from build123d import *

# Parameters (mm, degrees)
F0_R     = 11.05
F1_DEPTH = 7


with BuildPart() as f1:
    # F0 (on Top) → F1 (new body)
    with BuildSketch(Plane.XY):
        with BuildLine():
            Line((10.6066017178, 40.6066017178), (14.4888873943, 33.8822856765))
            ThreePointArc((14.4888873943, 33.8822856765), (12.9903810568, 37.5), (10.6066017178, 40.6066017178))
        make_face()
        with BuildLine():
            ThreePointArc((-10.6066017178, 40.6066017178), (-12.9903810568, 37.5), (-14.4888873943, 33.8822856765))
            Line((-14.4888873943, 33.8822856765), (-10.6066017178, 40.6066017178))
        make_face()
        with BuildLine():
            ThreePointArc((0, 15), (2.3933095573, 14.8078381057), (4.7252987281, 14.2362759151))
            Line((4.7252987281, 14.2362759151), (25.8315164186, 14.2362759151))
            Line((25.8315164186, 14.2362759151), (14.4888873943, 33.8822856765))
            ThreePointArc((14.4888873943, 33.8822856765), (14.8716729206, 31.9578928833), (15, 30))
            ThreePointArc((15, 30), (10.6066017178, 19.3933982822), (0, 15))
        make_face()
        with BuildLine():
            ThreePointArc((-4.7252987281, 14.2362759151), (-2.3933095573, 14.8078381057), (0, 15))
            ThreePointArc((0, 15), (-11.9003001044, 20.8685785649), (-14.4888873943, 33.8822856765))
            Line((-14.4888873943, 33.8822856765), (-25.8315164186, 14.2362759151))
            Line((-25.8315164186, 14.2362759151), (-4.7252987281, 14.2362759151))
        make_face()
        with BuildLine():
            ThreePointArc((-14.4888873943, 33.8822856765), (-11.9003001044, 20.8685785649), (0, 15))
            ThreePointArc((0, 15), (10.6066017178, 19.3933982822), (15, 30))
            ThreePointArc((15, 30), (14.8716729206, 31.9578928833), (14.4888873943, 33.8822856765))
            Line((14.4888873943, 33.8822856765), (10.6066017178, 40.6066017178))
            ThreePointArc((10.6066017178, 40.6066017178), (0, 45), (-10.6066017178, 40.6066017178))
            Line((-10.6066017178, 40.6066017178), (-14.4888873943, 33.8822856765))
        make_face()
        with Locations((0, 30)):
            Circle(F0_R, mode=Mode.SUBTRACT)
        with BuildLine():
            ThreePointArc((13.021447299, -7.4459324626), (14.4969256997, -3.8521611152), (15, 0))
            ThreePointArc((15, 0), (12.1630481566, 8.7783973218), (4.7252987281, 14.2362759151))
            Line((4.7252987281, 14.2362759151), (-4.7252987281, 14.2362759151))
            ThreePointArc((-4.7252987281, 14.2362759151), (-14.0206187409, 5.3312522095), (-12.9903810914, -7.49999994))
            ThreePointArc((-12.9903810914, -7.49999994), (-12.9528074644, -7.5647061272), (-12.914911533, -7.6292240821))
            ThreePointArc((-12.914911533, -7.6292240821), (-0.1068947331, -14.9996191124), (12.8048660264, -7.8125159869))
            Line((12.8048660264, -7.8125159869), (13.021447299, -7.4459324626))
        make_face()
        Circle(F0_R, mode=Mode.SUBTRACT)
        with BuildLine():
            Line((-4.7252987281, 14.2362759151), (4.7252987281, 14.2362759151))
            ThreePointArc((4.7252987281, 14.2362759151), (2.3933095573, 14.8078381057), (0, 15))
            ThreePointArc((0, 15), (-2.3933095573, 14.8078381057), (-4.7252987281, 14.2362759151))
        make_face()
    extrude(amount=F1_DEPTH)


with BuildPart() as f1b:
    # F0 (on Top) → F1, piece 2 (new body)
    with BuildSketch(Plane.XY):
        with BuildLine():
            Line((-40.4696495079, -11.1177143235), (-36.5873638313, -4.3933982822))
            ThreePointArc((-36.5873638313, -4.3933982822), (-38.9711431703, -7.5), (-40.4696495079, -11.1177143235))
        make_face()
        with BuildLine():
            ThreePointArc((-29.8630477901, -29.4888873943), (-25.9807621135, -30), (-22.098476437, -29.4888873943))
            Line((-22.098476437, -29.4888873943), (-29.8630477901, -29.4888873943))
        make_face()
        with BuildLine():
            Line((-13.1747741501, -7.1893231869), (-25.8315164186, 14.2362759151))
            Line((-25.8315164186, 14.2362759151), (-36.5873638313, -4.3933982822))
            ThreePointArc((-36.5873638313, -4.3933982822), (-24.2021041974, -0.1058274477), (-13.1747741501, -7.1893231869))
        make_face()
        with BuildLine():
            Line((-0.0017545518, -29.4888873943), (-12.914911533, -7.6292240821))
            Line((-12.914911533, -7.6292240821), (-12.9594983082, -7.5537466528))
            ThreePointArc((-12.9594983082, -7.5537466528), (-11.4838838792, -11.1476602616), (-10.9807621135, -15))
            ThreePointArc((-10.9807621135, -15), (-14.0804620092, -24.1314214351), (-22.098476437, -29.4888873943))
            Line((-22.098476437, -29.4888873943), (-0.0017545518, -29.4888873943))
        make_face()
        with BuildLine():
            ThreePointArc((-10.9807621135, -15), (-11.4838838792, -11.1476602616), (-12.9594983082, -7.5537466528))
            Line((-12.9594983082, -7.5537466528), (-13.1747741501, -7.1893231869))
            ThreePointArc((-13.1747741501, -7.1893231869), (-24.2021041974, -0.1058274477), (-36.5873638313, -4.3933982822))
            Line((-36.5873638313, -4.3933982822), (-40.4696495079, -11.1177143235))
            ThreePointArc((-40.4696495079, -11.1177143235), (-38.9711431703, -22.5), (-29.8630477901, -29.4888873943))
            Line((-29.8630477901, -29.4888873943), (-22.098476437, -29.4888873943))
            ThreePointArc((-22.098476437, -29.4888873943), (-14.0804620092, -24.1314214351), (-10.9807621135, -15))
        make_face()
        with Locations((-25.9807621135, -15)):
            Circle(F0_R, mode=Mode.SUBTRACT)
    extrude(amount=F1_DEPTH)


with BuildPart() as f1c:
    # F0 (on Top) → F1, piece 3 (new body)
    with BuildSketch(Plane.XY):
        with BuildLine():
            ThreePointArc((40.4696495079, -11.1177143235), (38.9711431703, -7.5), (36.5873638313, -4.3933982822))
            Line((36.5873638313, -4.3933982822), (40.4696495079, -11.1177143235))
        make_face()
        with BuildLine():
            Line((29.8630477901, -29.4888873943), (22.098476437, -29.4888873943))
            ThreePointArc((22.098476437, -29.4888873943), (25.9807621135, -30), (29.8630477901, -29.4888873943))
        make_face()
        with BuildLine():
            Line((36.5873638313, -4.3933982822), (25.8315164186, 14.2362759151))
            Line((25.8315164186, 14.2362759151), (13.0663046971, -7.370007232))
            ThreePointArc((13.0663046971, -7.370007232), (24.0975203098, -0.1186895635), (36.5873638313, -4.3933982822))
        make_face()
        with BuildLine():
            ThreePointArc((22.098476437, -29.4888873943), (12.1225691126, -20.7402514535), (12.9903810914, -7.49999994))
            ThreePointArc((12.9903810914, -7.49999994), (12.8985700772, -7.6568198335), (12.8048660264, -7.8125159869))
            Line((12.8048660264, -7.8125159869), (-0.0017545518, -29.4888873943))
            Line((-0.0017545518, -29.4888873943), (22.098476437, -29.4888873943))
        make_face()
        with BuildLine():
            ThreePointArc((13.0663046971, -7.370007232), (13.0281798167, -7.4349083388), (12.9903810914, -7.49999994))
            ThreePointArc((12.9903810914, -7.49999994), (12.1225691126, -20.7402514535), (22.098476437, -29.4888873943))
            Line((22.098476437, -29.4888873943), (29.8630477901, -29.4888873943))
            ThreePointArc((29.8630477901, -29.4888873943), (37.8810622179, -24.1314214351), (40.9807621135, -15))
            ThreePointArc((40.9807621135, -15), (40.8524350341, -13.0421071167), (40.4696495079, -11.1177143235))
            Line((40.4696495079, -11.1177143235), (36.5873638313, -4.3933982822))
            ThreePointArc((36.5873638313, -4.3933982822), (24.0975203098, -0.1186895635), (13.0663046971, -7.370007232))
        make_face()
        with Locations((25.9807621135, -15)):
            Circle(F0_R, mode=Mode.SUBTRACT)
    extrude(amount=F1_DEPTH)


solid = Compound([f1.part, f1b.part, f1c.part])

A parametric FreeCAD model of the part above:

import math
import FreeCAD as App
import Part
import Sketcher

V = App.Vector
Q = App.Units.Quantity

doc = App.newDocument("Part")
body = doc.addObject("PartDesign::Body", "Body")

sketch1 = body.newObject("Sketcher::SketchObject", "Sketch")
sketch1.AttachmentSupport = (doc.getObject("XY_Plane"), [""])
sketch1.MapMode = "FlatFace"
sketch1.addGeometry([
    Part.ArcOfCircle(Part.Circle(V(0, 30, 0), V(0, 0, 1), 15), math.radians(15), math.radians(45)),
    Part.ArcOfCircle(Part.Circle(V(0, 30, 0), V(0, 0, 1), 15), math.radians(45), math.radians(135)),
    Part.ArcOfCircle(Part.Circle(V(0, 30, 0), V(0, 0, 1), 15), math.radians(135), math.radians(165)),
    Part.LineSegment(V(-14.488887, 33.882286, 0), V(-25.831516, 14.236276, 0)),
    Part.LineSegment(V(-25.831516, 14.236276, 0), V(-4.725299, 14.236276, 0)),
    Part.ArcOfCircle(Part.Circle(V(0, 0, 0), V(0, 0, 1), 15), math.radians(108.362016), math.radians(210)),
    Part.ArcOfCircle(Part.Circle(V(-0.000002, -0.000001, 0), V(0, 0, 1), 14.999998), math.radians(-150), math.radians(-149.428384)),
    Part.ArcOfCircle(Part.Circle(V(0, 0, 0), V(0, 0, 1), 15), math.radians(-149.428385), math.radians(-31.388238)),
    Part.LineSegment(V(12.804866, -7.812516, 0), V(13.021447, -7.445932, 0)),
    Part.ArcOfCircle(Part.Circle(V(0, 0, 0), V(0, 0, 1), 15), math.radians(-29.761813), math.radians(0)),
    Part.ArcOfCircle(Part.Circle(V(0, 0, 0), V(0, 0, 1), 15), math.radians(0), math.radians(71.637984)),
    Part.LineSegment(V(4.725299, 14.236276, 0), V(25.831516, 14.236276, 0)),
    Part.LineSegment(V(25.831516, 14.236276, 0), V(14.488887, 33.882286, 0)),
    Part.Circle(V(0, 30, 0), V(0, 0, 1), 11.05),
    Part.Circle(V(0, 0, 0), V(0, 0, 1), 11.05),
], False)
sketch1.addConstraint([
    Sketcher.Constraint("Tangent", 0, 2, 1, 1),
    Sketcher.Constraint("Tangent", 1, 2, 2, 1),
    Sketcher.Constraint("Coincident", 2, 2, 3, 1),
    Sketcher.Constraint("Coincident", 3, 2, 4, 1),
    Sketcher.Constraint("Coincident", 4, 2, 5, 1),
    Sketcher.Constraint("Tangent", 5, 2, 6, 1),
    Sketcher.Constraint("Tangent", 6, 2, 7, 1),
    Sketcher.Constraint("Coincident", 7, 2, 8, 1),
    Sketcher.Constraint("Coincident", 8, 2, 9, 1),
    Sketcher.Constraint("Tangent", 9, 2, 10, 1),
    Sketcher.Constraint("Coincident", 10, 2, 11, 1),
    Sketcher.Constraint("Coincident", 11, 2, 12, 1),
    Sketcher.Constraint("Coincident", 12, 2, 0, 1),
    Sketcher.Constraint("Horizontal", 4),
    Sketcher.Constraint("Horizontal", 11),
    Sketcher.Constraint("Coincident", 5, 3, -1, 1),
    Sketcher.Constraint("Coincident", 7, 3, -1, 1),
    Sketcher.Constraint("Coincident", 9, 3, -1, 1),
    Sketcher.Constraint("Coincident", 14, 3, -1, 1),
    Sketcher.Constraint("Coincident", 2, 3, 0, 3),
    Sketcher.Constraint("Coincident", 13, 3, 0, 3),
    Sketcher.Constraint("Equal", 2, 5),
    Sketcher.Constraint("Equal", 7, 9),
    Sketcher.Constraint("Equal", 9, 10),
    Sketcher.Constraint("Equal", 13, 14),
    Sketcher.Constraint("Symmetric", 0, 2, 1, 2, -2),
    Sketcher.Constraint("Symmetric", 3, 2, 11, 2, -2),
    Sketcher.Constraint("PointOnObject", 9, 2, -1),
    Sketcher.Constraint("Horizontal", 2, 2, 12, 2),
    Sketcher.Constraint("Radius", 0, Q("15 mm")),
    Sketcher.Constraint("Diameter", 13, Q("22.1 mm")),
    Sketcher.Constraint("Angle", 3, Q("-120 deg")),
    Sketcher.Constraint("DistanceY", -1, 1, 0, 3, Q("30 mm")),
    Sketcher.Constraint("DistanceY", 5, 2, -1, 1, Q("7.5 mm")),
    Sketcher.Constraint("DistanceX", -1, 1, 0, 2, Q("10.606602 mm")),
    Sketcher.Constraint("DistanceX", 4, 2, -1, 1, Q("4.725299 mm")),
    Sketcher.Constraint("Distance", 3, Q("22.685258 mm")),
    Sketcher.Constraint("DistanceX", 6, 2, -1, 1, Q("12.914912 mm")),
    Sketcher.Constraint("DistanceX", 7, 2, 8, 2, Q("0.216581 mm")),
    Sketcher.Constraint("DistanceX", 8, 2, 11, 2, Q("12.810069 mm")),
])
pad1 = body.newObject("PartDesign::Pad", "Pad")
pad1.Profile = sketch1
pad1.Length = 7
body2 = doc.addObject("PartDesign::Body", "Body001")

sketch2 = body2.newObject("Sketcher::SketchObject", "Sketch001")
sketch2.AttachmentSupport = (doc.getObject("XY_Plane001"), [""])
sketch2.MapMode = "FlatFace"
sketch2.addGeometry([
    Part.ArcOfCircle(Part.Circle(V(-25.980762, -15, 0), V(0, 0, 1), 15), math.radians(135), math.radians(165)),
    Part.ArcOfCircle(Part.Circle(V(-25.980762, -15, 0), V(0, 0, 1), 15), math.radians(165), math.radians(255)),
    Part.ArcOfCircle(Part.Circle(V(-25.980762, -15, 0), V(0, 0, 1), 15), math.radians(-105), math.radians(-75)),
    Part.LineSegment(V(-22.098476, -29.488887, 0), V(-0.001755, -29.488887, 0)),
    Part.LineSegment(V(-0.001755, -29.488887, 0), V(-12.914912, -7.629224, 0)),
    Part.LineSegment(V(-12.914912, -7.629224, 0), V(-12.959498, -7.553747, 0)),
    Part.LineSegment(V(-12.959498, -7.553747, 0), V(-13.174774, -7.189323, 0)),
    Part.LineSegment(V(-13.174774, -7.189323, 0), V(-25.831516, 14.236276, 0)),
    Part.LineSegment(V(-25.831516, 14.236276, 0), V(-36.587364, -4.393398, 0)),
    Part.Circle(V(-25.980762, -15, 0), V(0, 0, 1), 11.05),
], False)
sketch2.addConstraint([
    Sketcher.Constraint("Tangent", 0, 2, 1, 1),
    Sketcher.Constraint("Tangent", 1, 2, 2, 1),
    Sketcher.Constraint("Coincident", 2, 2, 3, 1),
    Sketcher.Constraint("Coincident", 3, 2, 4, 1),
    Sketcher.Constraint("Coincident", 4, 2, 5, 1),
    Sketcher.Constraint("Coincident", 5, 2, 6, 1),
    Sketcher.Constraint("Coincident", 6, 2, 7, 1),
    Sketcher.Constraint("Coincident", 7, 2, 8, 1),
    Sketcher.Constraint("Coincident", 8, 2, 0, 1),
    Sketcher.Constraint("Horizontal", 3),
    Sketcher.Constraint("Coincident", 2, 3, 0, 3),
    Sketcher.Constraint("Coincident", 9, 3, 0, 3),
    Sketcher.Constraint("Parallel", 4, 5),
    Sketcher.Constraint("Parallel", 5, 6),
    Sketcher.Constraint("Parallel", 6, 7),
    Sketcher.Constraint("Horizontal", 1, 2, 2, 2),
    Sketcher.Constraint("Radius", 0, Q("15 mm")),
    Sketcher.Constraint("Diameter", 9, Q("22.1 mm")),
    Sketcher.Constraint("Angle", 8, Q("-120 deg")),
    Sketcher.Constraint("DistanceY", 0, 3, -1, 1, Q("15 mm")),
    Sketcher.Constraint("DistanceX", 3, 1, 3, 2, Q("22.096722 mm")),
    Sketcher.Constraint("DistanceX", 5, 2, -1, 1, Q("12.959498 mm")),
    Sketcher.Constraint("DistanceY", 8, 2, -1, 1, Q("4.393398 mm")),
    Sketcher.Constraint("DistanceX", 0, 2, 1, 2, Q("10.606602 mm")),
    Sketcher.Constraint("DistanceY", 4, 2, 6, 2, Q("0.439901 mm")),
    Sketcher.Constraint("DistanceY", 6, 2, 7, 2, Q("21.425599 mm")),
    Sketcher.Constraint("Distance", 6, Q("0.423259 mm")),
    Sketcher.Constraint("DistanceX", 0, 2, -1, 1, Q("40.46965 mm")),
    Sketcher.Constraint("DistanceX", 7, 2, 5, 2, Q("12.872018 mm")),
])
pad2 = body2.newObject("PartDesign::Pad", "Pad001")
pad2.Profile = sketch2
pad2.Length = 7
body3 = doc.addObject("PartDesign::Body", "Body002")

sketch3 = body3.newObject("Sketcher::SketchObject", "Sketch002")
sketch3.AttachmentSupport = (doc.getObject("XY_Plane002"), [""])
sketch3.MapMode = "FlatFace"
sketch3.addGeometry([
    Part.ArcOfCircle(Part.Circle(V(25.980762, -15, 0), V(0, 0, 1), 15), math.radians(15), math.radians(45)),
    Part.LineSegment(V(36.587364, -4.393398, 0), V(25.831516, 14.236276, 0)),
    Part.LineSegment(V(25.831516, 14.236276, 0), V(13.066305, -7.370007, 0)),
    Part.ArcOfCircle(Part.Circle(V(25.980766, -15.000002, 0), V(0, 0, 1), 15.000005), math.radians(149.424974), math.radians(150)),
    Part.ArcOfCircle(Part.Circle(V(0, 0, 0), V(0, 0, 1), 15), math.radians(-31.388238), math.radians(-30)),
    Part.LineSegment(V(12.804866, -7.812516, 0), V(-0.001755, -29.488887, 0)),
    Part.LineSegment(V(-0.001755, -29.488887, 0), V(22.098476, -29.488887, 0)),
    Part.ArcOfCircle(Part.Circle(V(25.980762, -15, 0), V(0, 0, 1), 15), math.radians(-105), math.radians(-75)),
    Part.ArcOfCircle(Part.Circle(V(25.980762, -15, 0), V(0, 0, 1), 15), math.radians(-75), math.radians(0)),
    Part.ArcOfCircle(Part.Circle(V(25.980762, -15, 0), V(0, 0, 1), 15), math.radians(0), math.radians(15)),
    Part.Circle(V(25.980762, -15, 0), V(0, 0, 1), 11.05),
], False)
sketch3.addConstraint([
    Sketcher.Constraint("Coincident", 0, 2, 1, 1),
    Sketcher.Constraint("Coincident", 1, 2, 2, 1),
    Sketcher.Constraint("Tangent", 2, 2, 3, 1),
    Sketcher.Constraint("Tangent", 3, 2, 4, 2),
    Sketcher.Constraint("Coincident", 4, 1, 5, 1),
    Sketcher.Constraint("Coincident", 5, 2, 6, 1),
    Sketcher.Constraint("Coincident", 6, 2, 7, 1),
    Sketcher.Constraint("Tangent", 7, 2, 8, 1),
    Sketcher.Constraint("Tangent", 8, 2, 9, 1),
    Sketcher.Constraint("Tangent", 9, 2, 0, 1),
    Sketcher.Constraint("Horizontal", 6),
    Sketcher.Constraint("Coincident", 4, 3, -1, 1),
    Sketcher.Constraint("Coincident", 3, 3, 0, 3),
    Sketcher.Constraint("Coincident", 7, 3, 0, 3),
    Sketcher.Constraint("Coincident", 10, 3, 0, 3),
    Sketcher.Constraint("Equal", 0, 4),
    Sketcher.Constraint("Equal", 4, 7),
    Sketcher.Constraint("Parallel", 2, 5),
    Sketcher.Constraint("Horizontal", 6, 2, 7, 2),
    Sketcher.Constraint("Horizontal", 10, 3, 8, 2),
    Sketcher.Constraint("Radius", 0, Q("15 mm")),
    Sketcher.Constraint("Diameter", 10, Q("22.1 mm")),
    Sketcher.Constraint("Angle", 1, Q("120 deg")),
    Sketcher.Constraint("DistanceY", 0, 3, -1, 1, Q("15 mm")),
    Sketcher.Constraint("DistanceY", 3, 2, -1, 1, Q("7.5 mm")),
    Sketcher.Constraint("DistanceX", 6, 1, 6, 2, Q("22.100231 mm")),
    Sketcher.Constraint("DistanceY", 0, 2, -1, 1, Q("4.393398 mm")),
    Sketcher.Constraint("Distance", 2, Q("25.09546 mm")),
    Sketcher.Constraint("DistanceX", -1, 1, 9, 2, Q("40.46965 mm")),
    Sketcher.Constraint("DistanceX", 4, 1, 2, 2, Q("0.261439 mm")),
])
pad3 = body3.newObject("PartDesign::Pad", "Pad002")
pad3.Profile = sketch3
pad3.Length = 7

doc.recompute()
